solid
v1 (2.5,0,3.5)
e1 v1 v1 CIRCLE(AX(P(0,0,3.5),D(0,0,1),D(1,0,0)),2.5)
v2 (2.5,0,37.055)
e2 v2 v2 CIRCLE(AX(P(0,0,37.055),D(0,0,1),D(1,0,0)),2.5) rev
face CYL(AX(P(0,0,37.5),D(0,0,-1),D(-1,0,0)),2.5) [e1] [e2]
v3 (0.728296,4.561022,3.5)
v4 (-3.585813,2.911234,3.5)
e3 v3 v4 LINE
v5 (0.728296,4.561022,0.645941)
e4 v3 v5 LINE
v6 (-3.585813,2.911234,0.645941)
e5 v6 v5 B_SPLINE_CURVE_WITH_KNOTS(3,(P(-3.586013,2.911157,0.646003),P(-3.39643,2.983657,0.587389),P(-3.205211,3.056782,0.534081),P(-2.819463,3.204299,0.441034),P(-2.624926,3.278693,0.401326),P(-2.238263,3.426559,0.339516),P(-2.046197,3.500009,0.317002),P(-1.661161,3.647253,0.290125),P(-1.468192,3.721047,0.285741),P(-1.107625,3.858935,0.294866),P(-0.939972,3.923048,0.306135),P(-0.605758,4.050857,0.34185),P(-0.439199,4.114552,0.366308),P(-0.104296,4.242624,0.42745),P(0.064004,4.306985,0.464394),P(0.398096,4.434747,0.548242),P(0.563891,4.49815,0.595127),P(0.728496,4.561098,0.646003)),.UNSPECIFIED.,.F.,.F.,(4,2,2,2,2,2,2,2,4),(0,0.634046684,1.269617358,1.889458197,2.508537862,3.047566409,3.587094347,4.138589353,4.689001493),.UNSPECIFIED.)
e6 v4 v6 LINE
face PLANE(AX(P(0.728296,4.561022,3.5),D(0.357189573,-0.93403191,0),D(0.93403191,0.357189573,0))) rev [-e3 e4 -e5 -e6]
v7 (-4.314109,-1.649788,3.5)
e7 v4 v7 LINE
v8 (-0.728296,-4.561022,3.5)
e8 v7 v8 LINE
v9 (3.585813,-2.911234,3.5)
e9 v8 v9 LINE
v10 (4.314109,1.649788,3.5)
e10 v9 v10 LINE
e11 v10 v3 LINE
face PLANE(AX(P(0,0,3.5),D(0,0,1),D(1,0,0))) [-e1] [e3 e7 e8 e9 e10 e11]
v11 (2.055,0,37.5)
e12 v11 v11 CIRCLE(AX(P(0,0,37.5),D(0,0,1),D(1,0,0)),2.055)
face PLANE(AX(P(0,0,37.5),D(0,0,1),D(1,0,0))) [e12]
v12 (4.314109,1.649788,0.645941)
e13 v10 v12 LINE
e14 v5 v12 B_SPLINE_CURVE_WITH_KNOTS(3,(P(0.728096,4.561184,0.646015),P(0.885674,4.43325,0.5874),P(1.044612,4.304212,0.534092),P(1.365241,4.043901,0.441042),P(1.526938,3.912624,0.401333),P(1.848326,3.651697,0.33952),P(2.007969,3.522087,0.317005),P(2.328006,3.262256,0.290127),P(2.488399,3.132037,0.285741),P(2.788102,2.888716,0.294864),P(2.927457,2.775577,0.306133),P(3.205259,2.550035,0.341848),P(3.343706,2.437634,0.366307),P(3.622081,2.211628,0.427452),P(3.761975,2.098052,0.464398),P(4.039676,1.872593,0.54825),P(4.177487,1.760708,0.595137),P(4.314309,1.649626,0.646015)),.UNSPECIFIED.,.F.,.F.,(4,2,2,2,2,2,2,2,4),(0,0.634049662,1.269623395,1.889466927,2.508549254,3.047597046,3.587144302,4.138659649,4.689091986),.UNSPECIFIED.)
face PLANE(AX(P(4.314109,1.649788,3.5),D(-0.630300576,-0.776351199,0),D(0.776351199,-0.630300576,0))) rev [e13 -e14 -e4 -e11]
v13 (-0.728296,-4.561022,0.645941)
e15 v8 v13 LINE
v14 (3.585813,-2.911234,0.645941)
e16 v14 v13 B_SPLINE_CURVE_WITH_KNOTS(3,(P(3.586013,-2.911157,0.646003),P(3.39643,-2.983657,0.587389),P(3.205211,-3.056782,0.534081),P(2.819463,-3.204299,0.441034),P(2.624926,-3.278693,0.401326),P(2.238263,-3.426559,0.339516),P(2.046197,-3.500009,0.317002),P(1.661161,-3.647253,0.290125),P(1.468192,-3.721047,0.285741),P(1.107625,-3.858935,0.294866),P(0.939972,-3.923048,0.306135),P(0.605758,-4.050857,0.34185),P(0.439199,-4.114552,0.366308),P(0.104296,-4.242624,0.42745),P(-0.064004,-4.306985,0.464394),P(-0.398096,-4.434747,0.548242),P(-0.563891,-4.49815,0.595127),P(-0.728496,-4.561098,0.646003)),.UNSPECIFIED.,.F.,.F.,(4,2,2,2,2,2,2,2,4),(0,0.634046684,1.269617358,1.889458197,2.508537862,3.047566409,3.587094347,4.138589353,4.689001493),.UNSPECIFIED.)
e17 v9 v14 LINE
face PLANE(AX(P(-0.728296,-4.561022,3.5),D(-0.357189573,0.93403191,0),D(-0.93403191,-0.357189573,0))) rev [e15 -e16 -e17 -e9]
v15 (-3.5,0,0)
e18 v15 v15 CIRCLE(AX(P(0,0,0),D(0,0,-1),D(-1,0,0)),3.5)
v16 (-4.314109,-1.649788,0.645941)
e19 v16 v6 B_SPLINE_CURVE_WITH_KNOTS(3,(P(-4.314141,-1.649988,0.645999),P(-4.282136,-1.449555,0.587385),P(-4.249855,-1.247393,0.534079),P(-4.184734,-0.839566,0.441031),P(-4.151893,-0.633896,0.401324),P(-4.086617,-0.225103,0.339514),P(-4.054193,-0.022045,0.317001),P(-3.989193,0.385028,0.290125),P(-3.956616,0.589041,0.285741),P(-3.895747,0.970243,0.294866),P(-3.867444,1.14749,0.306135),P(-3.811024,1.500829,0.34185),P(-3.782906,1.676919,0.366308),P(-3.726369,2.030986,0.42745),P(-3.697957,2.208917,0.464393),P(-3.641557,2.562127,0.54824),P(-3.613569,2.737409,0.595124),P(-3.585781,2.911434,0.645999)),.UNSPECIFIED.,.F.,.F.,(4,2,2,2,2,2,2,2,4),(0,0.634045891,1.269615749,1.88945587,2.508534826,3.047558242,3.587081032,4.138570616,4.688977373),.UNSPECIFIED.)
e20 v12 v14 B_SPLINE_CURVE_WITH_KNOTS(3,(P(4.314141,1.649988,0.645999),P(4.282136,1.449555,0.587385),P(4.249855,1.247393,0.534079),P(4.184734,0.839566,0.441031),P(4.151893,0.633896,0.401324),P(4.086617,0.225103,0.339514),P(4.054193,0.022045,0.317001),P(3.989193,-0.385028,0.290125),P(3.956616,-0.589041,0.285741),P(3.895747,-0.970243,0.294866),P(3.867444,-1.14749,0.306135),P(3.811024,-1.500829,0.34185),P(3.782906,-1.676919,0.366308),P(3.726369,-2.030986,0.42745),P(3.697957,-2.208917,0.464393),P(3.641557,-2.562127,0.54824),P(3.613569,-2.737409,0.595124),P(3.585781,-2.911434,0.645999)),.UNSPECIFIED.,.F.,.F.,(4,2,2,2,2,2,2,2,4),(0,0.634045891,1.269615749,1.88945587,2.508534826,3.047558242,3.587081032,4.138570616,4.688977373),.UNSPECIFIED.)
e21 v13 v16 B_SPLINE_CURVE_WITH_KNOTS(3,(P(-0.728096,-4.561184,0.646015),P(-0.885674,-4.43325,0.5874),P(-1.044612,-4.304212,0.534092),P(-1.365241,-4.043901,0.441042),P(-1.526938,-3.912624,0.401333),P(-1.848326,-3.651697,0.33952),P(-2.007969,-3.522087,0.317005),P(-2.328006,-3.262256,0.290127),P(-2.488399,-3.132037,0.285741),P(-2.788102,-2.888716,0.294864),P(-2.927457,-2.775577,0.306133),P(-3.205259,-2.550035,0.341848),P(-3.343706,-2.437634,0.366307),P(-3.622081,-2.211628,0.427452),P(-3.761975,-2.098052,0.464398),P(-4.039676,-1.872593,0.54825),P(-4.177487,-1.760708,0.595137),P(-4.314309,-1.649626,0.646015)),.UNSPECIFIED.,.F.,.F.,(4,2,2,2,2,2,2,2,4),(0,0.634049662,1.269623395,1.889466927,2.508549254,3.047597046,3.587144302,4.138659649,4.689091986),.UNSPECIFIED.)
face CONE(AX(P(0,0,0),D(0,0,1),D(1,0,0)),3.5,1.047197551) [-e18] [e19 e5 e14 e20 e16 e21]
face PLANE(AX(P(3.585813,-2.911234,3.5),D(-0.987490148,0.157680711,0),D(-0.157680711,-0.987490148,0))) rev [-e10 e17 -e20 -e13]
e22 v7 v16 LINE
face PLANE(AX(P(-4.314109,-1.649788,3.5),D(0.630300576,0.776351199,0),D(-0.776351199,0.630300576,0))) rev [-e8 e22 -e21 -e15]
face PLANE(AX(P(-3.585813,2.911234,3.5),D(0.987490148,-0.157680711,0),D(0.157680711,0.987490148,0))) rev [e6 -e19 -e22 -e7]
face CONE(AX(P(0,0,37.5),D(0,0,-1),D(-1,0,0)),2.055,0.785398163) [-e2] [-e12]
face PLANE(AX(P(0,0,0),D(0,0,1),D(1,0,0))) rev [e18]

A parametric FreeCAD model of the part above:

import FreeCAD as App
import Part
import Sketcher
from FreeCAD import Vector
Q = App.Units.Quantity


def edges_at(feature, points):
    """Names of the edges that pass closest to the given points."""
    edges = feature.Shape.Edges
    near = lambda p: min(range(len(edges)), key=lambda i: edges[i].distToShape(Part.Vertex(*p))[0])
    return sorted({f"Edge{near(p) + 1}" for p in points})


def add_polygon(sketch, points):
    """Adds a closed chain of lines whose ends are joined by coincident constraints."""
    first, n = sketch.GeometryCount, len(points)
    for a, b in zip(points, points[1:] + points[:1]):
        sketch.addGeometry(Part.LineSegment(App.Vector(*a, 0), App.Vector(*b, 0)), False)
    for i in range(n):
        sketch.addConstraint(Sketcher.Constraint("Coincident", first + i, 2, first + (i + 1) % n, 1))

doc = App.newDocument("Part")
body = doc.addObject("PartDesign::Body", "Body")

# Sketch on XY plane
sketch1 = doc.addObject("Sketcher::SketchObject", "Sketch")
body.addObject(sketch1)
sketch1.AttachmentSupport = (doc.XY_Plane, [""])
sketch1.MapMode = "FlatFace"
add_polygon(sketch1, [(0.7, 4.6), (-3.6, 2.9), (-4.3, -1.6), (-0.7, -4.6), (3.6, -2.9), (4.3, 1.6)])  # lines 0-5
sketch1.addConstraint([
    Sketcher.Constraint("Symmetric", 0, 2, 3, 2, -1, 1),
    Sketcher.Constraint("Symmetric", 1, 2, 4, 2, -1, 1),
    Sketcher.Constraint("Symmetric", 2, 2, 5, 2, -1, 1),
    Sketcher.Constraint("Equal", 0, 1),
    Sketcher.Constraint("Equal", 1, 2),
    Sketcher.Constraint("DistanceX", 1, 2, -1, 1, Q("4.314109 mm")),
    Sketcher.Constraint("DistanceY", 2, 2, -1, 1, Q("4.561022 mm")),
    Sketcher.Constraint("DistanceY", 1, 2, 0, 2, Q("4.561022 mm")),
    Sketcher.Constraint("DistanceX", 2, 2, 3, 2, Q("4.314109 mm")),
])
pad1 = doc.addObject("PartDesign::Pad", "Pad")
body.addObject(pad1)
pad1.Profile = sketch1
pad1.Length = 3.5

# Sketch on XY plane
sketch2 = doc.addObject("Sketcher::SketchObject", "Sketch001")
body.addObject(sketch2)
sketch2.AttachmentSupport = (doc.XY_Plane, [""])
sketch2.MapMode = "FlatFace"
sketch2.AttachmentOffset = App.Placement(Vector(0, 0, 3.5), App.Rotation())
sketch2.addGeometry(Part.Circle(Vector(0, 0, 0), Vector(0, 0, 1), 2.5), False)
sketch2.addConstraint([
    Sketcher.Constraint("Coincident", 0, 3, -1, 1),
    Sketcher.Constraint("Diameter", 0, Q("5 mm")),
])
pad2 = doc.addObject("PartDesign::Pad", "Pad001")
body.addObject(pad2)
pad2.Profile = sketch2
pad2.Length = 34
doc.recompute()

chamfer = doc.addObject("PartDesign::Chamfer", "Chamfer")
body.addObject(chamfer)
chamfer.Base = (pad2, edges_at(pad2, [(-2.5, 0, 37.5)]))
chamfer.Size = 0.445

# Sketch on XZ plane
sketch3 = doc.addObject("Sketcher::SketchObject", "Sketch002")
body.addObject(sketch3)
sketch3.AttachmentSupport = (doc.XZ_Plane, [""])
sketch3.MapMode = "FlatFace"
add_polygon(sketch3, [(7.5, 0), (3.5, 0), (7.5, 2.3)])  # lines 0-2
sketch3.addConstraint([
    Sketcher.Constraint("Horizontal", 0),
    Sketcher.Constraint("Vertical", 2),
    Sketcher.Constraint("PointOnObject", 0, 2, -1),
    Sketcher.Constraint("DistanceX", 0, 2, 0, 1, Q("4 mm")),
    Sketcher.Constraint("Angle", 1, Q("30 deg")),
    Sketcher.Constraint("DistanceX", -1, 1, 0, 2, Q("3.5 mm")),
])
groove = doc.addObject("PartDesign::Groove", "Groove")
body.addObject(groove)
groove.Profile = sketch3
groove.ReferenceAxis = (sketch3, ["V_Axis"])
groove.Angle = 360

doc.recompute()
